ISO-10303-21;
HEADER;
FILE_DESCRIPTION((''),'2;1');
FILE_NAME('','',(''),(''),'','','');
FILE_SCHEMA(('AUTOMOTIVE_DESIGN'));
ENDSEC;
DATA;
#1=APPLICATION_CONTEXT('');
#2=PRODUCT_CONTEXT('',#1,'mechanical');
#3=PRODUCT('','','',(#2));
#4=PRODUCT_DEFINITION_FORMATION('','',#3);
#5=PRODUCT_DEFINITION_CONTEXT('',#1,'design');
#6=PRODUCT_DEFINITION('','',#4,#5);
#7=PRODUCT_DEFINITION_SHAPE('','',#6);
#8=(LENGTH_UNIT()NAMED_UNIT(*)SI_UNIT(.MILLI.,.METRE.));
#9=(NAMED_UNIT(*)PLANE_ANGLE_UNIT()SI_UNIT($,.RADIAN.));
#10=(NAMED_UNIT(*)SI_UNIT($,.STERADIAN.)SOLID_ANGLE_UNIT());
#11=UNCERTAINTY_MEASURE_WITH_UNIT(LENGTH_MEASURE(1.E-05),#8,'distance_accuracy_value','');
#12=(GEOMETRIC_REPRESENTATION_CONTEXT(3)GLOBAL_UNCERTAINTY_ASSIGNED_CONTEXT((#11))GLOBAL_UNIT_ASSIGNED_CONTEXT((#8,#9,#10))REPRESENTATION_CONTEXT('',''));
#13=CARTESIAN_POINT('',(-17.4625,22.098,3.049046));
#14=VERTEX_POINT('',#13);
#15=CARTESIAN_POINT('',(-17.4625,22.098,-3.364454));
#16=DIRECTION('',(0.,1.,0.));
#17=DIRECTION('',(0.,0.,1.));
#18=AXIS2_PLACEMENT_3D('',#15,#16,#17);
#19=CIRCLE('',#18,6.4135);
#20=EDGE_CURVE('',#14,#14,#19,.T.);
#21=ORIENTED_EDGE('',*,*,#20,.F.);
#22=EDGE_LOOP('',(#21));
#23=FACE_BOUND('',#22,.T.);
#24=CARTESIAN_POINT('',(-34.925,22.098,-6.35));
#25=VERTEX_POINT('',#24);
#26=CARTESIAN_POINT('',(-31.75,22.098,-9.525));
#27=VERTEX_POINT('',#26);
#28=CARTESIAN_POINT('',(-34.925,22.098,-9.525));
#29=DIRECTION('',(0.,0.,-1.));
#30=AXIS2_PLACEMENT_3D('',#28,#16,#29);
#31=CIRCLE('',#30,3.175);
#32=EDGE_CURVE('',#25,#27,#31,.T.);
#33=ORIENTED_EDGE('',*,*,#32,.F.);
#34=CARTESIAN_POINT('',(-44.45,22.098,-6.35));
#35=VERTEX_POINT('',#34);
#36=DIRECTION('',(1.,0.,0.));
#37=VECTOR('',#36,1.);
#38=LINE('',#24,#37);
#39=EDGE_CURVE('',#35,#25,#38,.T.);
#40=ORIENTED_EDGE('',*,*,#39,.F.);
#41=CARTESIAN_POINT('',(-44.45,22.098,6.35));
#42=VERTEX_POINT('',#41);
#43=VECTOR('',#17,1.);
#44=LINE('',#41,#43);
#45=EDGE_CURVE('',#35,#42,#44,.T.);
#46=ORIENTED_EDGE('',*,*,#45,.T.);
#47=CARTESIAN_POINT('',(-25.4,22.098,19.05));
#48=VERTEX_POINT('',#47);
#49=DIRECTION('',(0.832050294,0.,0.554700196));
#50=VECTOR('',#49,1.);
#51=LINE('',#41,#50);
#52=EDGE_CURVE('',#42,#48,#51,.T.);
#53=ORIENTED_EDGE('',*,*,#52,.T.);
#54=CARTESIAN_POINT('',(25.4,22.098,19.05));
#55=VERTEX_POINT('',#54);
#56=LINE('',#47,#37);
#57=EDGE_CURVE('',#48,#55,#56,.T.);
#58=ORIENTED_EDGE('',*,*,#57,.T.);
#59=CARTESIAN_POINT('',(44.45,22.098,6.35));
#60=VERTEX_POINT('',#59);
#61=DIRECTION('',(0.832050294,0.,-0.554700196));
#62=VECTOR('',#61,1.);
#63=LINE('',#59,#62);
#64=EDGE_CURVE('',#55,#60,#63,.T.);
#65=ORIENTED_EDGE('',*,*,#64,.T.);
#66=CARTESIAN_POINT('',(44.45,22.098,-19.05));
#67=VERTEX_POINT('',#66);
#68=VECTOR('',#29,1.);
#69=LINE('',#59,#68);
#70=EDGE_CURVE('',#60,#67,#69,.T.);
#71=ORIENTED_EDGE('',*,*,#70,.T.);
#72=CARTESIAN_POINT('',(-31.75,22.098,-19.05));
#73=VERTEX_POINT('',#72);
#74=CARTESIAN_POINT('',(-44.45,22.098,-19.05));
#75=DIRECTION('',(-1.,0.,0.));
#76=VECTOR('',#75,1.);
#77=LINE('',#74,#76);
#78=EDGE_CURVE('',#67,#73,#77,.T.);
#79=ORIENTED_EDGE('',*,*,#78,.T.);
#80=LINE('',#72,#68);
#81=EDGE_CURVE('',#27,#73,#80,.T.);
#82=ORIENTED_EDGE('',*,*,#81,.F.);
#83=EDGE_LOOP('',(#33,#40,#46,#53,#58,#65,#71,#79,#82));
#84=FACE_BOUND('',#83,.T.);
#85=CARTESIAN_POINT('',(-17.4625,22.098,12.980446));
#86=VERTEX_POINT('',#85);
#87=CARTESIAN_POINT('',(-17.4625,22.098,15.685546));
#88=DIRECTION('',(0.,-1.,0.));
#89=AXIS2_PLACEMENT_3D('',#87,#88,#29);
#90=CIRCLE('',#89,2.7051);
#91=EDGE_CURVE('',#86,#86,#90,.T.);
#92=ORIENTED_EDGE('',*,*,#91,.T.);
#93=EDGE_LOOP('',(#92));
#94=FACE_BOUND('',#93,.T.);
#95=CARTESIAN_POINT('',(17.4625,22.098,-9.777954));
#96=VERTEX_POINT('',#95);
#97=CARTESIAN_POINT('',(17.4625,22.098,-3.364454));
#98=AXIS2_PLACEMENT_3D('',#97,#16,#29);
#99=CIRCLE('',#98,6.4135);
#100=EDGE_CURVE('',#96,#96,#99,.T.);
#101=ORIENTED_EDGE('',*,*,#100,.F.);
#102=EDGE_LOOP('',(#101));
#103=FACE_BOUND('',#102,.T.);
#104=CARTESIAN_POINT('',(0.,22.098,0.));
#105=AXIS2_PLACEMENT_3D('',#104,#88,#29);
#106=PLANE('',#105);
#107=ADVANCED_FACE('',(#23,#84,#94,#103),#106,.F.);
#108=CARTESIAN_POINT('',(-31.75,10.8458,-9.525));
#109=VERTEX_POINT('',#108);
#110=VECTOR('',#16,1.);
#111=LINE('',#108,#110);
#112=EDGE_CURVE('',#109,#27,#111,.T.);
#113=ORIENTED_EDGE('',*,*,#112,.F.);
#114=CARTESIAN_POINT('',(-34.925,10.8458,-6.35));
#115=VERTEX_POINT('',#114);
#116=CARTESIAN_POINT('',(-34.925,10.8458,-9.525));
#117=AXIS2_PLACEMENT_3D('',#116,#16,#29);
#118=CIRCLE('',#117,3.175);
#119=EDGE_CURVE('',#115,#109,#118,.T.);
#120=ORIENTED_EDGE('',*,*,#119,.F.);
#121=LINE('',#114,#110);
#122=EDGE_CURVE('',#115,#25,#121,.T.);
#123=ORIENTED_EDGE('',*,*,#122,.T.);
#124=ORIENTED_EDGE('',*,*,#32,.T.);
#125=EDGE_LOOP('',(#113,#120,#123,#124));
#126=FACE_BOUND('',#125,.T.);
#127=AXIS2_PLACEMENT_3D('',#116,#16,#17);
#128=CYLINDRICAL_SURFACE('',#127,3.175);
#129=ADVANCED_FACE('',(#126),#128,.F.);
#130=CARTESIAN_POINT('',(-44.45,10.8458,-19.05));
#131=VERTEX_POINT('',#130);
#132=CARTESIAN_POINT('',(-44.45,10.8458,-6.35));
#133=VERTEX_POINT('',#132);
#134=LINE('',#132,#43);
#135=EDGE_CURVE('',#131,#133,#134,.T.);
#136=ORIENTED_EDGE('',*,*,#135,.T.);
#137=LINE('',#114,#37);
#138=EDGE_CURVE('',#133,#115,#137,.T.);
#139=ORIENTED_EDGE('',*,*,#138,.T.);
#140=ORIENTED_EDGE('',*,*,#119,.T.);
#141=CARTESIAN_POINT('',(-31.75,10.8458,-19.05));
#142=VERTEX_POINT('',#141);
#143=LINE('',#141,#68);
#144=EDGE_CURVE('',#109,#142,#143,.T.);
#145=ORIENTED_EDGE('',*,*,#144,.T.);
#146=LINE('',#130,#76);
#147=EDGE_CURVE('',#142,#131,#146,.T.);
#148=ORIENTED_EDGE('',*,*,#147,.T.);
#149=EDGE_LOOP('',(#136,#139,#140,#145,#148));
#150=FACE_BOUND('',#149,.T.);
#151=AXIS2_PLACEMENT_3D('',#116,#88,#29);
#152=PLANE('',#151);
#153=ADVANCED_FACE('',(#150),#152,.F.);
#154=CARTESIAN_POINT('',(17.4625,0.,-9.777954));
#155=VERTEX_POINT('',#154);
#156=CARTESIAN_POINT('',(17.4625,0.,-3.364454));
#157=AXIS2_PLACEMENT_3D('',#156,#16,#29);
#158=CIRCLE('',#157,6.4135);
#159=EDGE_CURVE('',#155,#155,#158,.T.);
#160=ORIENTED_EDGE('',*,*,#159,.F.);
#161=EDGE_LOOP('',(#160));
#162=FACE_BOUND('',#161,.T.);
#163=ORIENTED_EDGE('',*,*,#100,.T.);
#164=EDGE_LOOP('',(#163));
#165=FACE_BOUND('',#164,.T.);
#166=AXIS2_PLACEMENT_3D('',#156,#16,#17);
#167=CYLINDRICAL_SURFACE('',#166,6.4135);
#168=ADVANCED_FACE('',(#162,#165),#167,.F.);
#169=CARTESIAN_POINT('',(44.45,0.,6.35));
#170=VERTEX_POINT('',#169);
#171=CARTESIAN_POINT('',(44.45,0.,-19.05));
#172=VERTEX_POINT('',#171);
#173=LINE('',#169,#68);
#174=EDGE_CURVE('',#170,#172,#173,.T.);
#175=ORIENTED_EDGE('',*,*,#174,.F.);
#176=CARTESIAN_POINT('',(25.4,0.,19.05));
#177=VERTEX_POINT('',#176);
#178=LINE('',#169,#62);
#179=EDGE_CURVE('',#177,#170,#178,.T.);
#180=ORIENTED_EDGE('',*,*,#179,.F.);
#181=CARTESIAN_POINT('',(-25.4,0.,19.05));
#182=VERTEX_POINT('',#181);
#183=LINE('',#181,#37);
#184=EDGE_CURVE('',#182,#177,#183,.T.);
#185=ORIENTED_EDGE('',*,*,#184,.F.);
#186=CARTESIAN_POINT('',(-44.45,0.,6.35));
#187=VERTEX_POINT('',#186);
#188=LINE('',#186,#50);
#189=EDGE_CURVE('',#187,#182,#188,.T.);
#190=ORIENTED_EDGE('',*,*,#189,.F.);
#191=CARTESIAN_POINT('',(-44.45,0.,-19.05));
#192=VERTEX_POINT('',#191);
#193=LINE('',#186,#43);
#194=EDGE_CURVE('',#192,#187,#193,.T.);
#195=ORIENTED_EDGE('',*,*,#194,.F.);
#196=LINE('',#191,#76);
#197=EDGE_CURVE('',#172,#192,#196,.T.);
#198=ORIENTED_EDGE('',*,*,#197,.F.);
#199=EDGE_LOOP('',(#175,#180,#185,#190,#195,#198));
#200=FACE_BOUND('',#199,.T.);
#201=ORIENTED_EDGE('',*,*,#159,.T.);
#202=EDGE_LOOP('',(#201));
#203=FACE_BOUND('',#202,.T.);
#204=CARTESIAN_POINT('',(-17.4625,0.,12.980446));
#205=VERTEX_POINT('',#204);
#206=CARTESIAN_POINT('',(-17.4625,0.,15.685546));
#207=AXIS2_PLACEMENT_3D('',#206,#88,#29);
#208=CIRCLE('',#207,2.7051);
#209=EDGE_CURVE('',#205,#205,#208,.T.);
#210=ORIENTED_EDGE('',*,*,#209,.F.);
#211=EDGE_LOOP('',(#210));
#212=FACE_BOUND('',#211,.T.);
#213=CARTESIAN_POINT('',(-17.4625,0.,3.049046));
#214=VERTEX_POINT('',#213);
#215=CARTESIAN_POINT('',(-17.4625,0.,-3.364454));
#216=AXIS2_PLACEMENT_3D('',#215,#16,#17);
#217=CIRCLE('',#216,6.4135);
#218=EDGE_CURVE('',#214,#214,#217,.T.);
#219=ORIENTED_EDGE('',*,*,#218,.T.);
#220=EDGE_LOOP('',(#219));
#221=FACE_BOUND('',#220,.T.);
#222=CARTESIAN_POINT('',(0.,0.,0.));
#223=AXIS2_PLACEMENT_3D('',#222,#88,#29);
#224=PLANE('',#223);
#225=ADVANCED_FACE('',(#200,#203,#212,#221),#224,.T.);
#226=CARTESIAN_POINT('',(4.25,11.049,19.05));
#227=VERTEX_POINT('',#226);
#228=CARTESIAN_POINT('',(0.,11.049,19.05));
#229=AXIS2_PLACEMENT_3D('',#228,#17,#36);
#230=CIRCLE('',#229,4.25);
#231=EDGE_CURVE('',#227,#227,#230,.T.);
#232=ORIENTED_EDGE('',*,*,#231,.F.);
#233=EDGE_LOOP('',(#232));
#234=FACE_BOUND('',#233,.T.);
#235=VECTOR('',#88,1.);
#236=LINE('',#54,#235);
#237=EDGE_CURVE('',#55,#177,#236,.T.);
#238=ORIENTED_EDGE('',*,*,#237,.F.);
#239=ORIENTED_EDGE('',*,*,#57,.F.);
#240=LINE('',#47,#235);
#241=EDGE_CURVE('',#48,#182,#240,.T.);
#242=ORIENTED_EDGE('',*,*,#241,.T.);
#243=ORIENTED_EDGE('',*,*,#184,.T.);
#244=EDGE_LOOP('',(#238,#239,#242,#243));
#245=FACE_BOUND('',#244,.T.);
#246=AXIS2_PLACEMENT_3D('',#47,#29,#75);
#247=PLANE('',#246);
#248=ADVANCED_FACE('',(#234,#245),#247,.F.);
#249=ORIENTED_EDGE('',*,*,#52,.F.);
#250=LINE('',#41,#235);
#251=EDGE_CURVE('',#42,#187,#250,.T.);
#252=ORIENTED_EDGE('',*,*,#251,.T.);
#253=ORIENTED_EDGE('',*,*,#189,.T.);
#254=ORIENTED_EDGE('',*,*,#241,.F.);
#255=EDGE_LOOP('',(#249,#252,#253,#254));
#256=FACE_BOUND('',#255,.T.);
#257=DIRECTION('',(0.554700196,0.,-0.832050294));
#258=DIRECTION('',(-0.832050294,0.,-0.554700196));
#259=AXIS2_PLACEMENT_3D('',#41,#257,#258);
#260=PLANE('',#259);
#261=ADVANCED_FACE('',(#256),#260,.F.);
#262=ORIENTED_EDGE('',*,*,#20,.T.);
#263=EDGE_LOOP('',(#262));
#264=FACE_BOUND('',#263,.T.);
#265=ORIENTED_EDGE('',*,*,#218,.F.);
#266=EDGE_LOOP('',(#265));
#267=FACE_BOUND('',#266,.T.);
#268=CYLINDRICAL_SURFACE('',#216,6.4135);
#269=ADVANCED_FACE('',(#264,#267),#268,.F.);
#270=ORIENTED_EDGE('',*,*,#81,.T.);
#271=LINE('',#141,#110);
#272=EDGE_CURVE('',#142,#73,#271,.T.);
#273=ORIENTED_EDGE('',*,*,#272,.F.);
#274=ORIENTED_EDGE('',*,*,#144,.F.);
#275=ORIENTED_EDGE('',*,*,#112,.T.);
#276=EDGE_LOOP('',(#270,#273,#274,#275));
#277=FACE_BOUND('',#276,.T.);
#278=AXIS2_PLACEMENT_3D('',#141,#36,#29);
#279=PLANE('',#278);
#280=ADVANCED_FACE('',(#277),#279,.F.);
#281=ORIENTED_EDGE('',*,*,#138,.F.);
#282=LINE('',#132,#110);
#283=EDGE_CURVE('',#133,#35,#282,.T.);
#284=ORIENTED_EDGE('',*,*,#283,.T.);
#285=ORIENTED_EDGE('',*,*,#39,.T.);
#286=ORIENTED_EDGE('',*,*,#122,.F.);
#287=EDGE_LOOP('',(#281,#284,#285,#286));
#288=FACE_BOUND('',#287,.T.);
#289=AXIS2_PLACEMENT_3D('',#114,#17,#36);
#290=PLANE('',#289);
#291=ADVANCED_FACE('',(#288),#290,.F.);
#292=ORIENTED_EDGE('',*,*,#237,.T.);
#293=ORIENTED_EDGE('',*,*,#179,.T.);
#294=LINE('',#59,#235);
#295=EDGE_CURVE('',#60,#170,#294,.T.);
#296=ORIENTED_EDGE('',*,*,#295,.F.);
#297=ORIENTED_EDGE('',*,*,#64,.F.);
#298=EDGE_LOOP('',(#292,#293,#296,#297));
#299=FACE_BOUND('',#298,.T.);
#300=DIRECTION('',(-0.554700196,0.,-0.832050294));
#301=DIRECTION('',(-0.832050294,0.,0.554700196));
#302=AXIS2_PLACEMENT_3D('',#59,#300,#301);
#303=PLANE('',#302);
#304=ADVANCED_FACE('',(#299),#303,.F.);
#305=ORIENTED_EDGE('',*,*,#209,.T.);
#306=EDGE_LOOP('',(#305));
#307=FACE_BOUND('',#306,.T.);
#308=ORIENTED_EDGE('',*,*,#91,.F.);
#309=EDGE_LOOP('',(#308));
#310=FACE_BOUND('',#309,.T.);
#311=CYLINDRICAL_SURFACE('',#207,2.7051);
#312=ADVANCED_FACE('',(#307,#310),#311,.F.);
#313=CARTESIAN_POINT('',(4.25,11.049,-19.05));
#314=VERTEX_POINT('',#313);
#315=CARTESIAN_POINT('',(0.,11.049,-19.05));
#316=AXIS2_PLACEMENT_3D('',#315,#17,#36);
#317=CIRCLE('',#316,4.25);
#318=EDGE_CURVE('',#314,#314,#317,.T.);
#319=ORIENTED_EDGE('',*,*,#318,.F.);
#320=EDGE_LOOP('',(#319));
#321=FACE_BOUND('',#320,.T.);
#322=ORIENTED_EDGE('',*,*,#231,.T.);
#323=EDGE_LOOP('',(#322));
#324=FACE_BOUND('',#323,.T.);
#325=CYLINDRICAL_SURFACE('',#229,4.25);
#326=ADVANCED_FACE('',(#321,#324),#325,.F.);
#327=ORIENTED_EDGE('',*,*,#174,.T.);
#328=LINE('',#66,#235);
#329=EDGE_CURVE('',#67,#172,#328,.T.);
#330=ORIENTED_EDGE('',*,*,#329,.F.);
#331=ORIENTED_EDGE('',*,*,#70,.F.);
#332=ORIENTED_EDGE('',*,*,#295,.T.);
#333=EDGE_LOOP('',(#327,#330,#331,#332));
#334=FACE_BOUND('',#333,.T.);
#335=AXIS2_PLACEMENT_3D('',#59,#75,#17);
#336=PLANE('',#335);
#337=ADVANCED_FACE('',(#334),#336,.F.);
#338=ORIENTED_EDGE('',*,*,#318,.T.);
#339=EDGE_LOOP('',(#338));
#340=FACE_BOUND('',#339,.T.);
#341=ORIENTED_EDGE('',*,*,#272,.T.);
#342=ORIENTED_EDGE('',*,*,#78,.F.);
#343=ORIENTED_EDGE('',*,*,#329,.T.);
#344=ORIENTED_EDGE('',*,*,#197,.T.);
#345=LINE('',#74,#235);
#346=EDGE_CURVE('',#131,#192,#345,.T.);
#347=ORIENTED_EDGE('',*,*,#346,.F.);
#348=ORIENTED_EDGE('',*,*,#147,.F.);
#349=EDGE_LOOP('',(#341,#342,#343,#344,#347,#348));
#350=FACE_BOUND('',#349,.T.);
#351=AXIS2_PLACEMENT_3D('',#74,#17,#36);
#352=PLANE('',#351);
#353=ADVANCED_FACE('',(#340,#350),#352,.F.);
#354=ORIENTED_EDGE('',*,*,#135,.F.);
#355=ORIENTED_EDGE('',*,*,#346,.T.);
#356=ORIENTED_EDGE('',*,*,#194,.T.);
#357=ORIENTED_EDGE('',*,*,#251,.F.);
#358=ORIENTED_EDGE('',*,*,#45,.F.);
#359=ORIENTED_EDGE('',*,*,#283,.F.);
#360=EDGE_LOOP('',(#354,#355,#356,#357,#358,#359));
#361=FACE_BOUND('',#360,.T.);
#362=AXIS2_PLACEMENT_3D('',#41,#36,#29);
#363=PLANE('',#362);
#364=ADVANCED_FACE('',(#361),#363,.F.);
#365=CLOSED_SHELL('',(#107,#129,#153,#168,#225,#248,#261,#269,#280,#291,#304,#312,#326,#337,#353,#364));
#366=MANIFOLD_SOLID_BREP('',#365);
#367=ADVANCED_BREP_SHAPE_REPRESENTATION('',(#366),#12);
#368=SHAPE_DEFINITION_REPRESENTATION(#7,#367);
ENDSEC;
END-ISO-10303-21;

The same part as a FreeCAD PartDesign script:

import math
import FreeCAD as App
import Part
import Sketcher

V = App.Vector
Q = App.Units.Quantity


def add_polygon(sketch, points):
    """Adds a closed chain of lines whose ends are joined by coincident constraints."""
    first, n = sketch.GeometryCount, len(points)
    for a, b in zip(points, points[1:] + points[:1]):
        sketch.addGeometry(Part.LineSegment(App.Vector(*a, 0), App.Vector(*b, 0)), False)
    for i in range(n):
        sketch.addConstraint(Sketcher.Constraint("Coincident", first + i, 2, first + (i + 1) % n, 1))

doc = App.newDocument("Part")
body = doc.addObject("PartDesign::Body", "Body")

# Sketch on XZ plane
sketch1 = body.newObject("Sketcher::SketchObject", "Sketch")
sketch1.AttachmentSupport = (doc.getObject("XZ_Plane"), [""])
sketch1.MapMode = "FlatFace"
add_polygon(sketch1, [(-44, 6), (-25, 19), (25, 19), (44, 6), (44, -19), (-44, -19)])  # lines 0-5
sketch1.addConstraint(Sketcher.Constraint("Horizontal", 1))
sketch1.addConstraint(Sketcher.Constraint("Vertical", 3))
sketch1.addConstraint(Sketcher.Constraint("Horizontal", 4))
sketch1.addConstraint(Sketcher.Constraint("Vertical", 5))
sketch1.addConstraint(Sketcher.Constraint("Symmetric", 2, 2, 5, 2, -2))
sketch1.addConstraint(Sketcher.Constraint("Equal", 0, 2))
sketch1.addConstraint(Sketcher.Constraint("DistanceX", 1, 1, 1, 2, Q("2 in")))
sketch1.addConstraint(Sketcher.Constraint("DistanceY", 3, 2, 3, 1, Q("1 in")))
sketch1.addConstraint(Sketcher.Constraint("DistanceX", 4, 2, 4, 1, Q("3.5 in")))
sketch1.addConstraint(Sketcher.Constraint("DistanceY", 2, 2, 1, 2, Q("0.5 in")))
sketch1.addConstraint(Sketcher.Constraint("DistanceY", -1, 1, 0, 2, Q("0.75 in")))
pad1 = body.newObject("PartDesign::Pad", "Pad")
pad1.Profile = sketch1
pad1.Length = Q("0.87 in")
pad1.Reversed = True

# Sketch on XZ plane
sketch2 = body.newObject("Sketcher::SketchObject", "Sketch001")
sketch2.AttachmentSupport = (doc.getObject("XZ_Plane"), [""])
sketch2.MapMode = "FlatFace"
sketch2.AttachmentOffset = App.Placement(V(0, 0, -0.87 * 25.4), App.Rotation())
sketch2.addGeometry(Part.LineSegment(V(-31.8, -9.5, 0), V(-31.8, -19.1, 0)), False)
sketch2.addGeometry(Part.LineSegment(V(-31.8, -19.1, 0), V(-44.5, -19.1, 0)), False)
sketch2.addGeometry(Part.LineSegment(V(-44.5, -19.1, 0), V(-44.5, -6.3, 0)), False)
sketch2.addGeometry(Part.LineSegment(V(-44.5, -6.3, 0), V(-34.9, -6.3, 0)), False)
sketch2.addGeometry(Part.ArcOfCircle(Part.Circle(V(-34.9, -9.5, 0), V(0, 0, 1), 3.2), math.radians(0), math.radians(90)), False)
sketch2.addConstraint(Sketcher.Constraint("Coincident", 0, 2, 1, 1))
sketch2.addConstraint(Sketcher.Constraint("Coincident", 1, 2, 2, 1))
sketch2.addConstraint(Sketcher.Constraint("Coincident", 2, 2, 3, 1))
sketch2.addConstraint(Sketcher.Constraint("Tangent", 3, 2, 4, 2))
sketch2.addConstraint(Sketcher.Constraint("Tangent", 4, 1, 0, 1))
sketch2.addConstraint(Sketcher.Constraint("Vertical", 0))
sketch2.addConstraint(Sketcher.Constraint("Horizontal", 1))
sketch2.addConstraint(Sketcher.Constraint("Vertical", 2))
sketch2.addConstraint(Sketcher.Constraint("Horizontal", 3))
sketch2.addConstraint(Sketcher.Constraint("Equal", 3, 0))
sketch2.addConstraint(Sketcher.Constraint("DistanceX", 1, 2, 1, 1, Q("0.5 in")))
sketch2.addConstraint(Sketcher.Constraint("Radius", 4, Q("0.125 in")))
sketch2.addConstraint(Sketcher.Constraint("DistanceX", 0, 2, -1, 1, Q("1.25 in")))
sketch2.addConstraint(Sketcher.Constraint("DistanceY", 0, 2, -1, 1, Q("0.75 in")))
pocket1 = body.newObject("PartDesign::Pocket", "Pocket")
pocket1.Profile = sketch2
pocket1.Length = Q("0.443 in")
pocket1.Reversed = True

# Sketch on XY plane
sketch3 = body.newObject("Sketcher::SketchObject", "Sketch002")
sketch3.AttachmentSupport = (doc.getObject("XY_Plane"), [""])
sketch3.MapMode = "FlatFace"
sketch3.AttachmentOffset = App.Placement(V(0, 0, 0.75 * 25.4), App.Rotation())
sketch3.addGeometry(Part.Circle(V(0, 11, 0), V(0, 0, 1), 4.2), False)
sketch3.addConstraint(Sketcher.Constraint("PointOnObject", 0, 3, -2))
sketch3.addConstraint(Sketcher.Constraint("Diameter", 0, Q("8.5 mm")))
sketch3.addConstraint(Sketcher.Constraint("DistanceY", -1, 1, 0, 3, Q("0.435 in")))
doc.recompute()
hole = body.newObject("PartDesign::Hole", "Hole")
hole.Profile = sketch3
hole.ThreadType = "None"
hole.Diameter = 8.5
hole.DepthType = "ThroughAll"

# Sketch on XZ plane
sketch4 = body.newObject("Sketcher::SketchObject", "Sketch003")
sketch4.AttachmentSupport = (doc.getObject("XZ_Plane"), [""])
sketch4.MapMode = "FlatFace"
sketch4.AttachmentOffset = App.Placement(V(0, 0, -0.87 * 25.4), App.Rotation())
sketch4.addGeometry(Part.Circle(V(-17, -3, 0), V(0, 0, 1), 6), False)
sketch4.addGeometry(Part.Circle(V(17, -3, 0), V(0, 0, 1), 6), False)
sketch4.addConstraint(Sketcher.Constraint("Equal", 0, 1))
sketch4.addConstraint(Sketcher.Constraint("Symmetric", 0, 3, 1, 3, -2))
sketch4.addConstraint(Sketcher.Constraint("Diameter", 0, Q("0.505 in")))
sketch4.addConstraint(Sketcher.Constraint("DistanceX", 0, 3, -1, 1, Q("0.6875 in")))
sketch4.addConstraint(Sketcher.Constraint("DistanceY", 0, 3, -1, 1, Q("3.364454 mm")))
pocket2 = body.newObject("PartDesign::Pocket", "Pocket001")
pocket2.Profile = sketch4
pocket2.Type = "ThroughAll"
pocket2.Reversed = True

# Sketch on XZ plane
sketch5 = body.newObject("Sketcher::SketchObject", "Sketch004")
sketch5.AttachmentSupport = (doc.getObject("XZ_Plane"), [""])
sketch5.MapMode = "FlatFace"
sketch5.addGeometry(Part.Circle(V(-17.5, 15.7, 0), V(0, 0, 1), 2.7), False)
sketch5.addConstraint(Sketcher.Constraint("Diameter", 0, Q("0.213 in")))
sketch5.addConstraint(Sketcher.Constraint("DistanceX", 0, 3, -1, 1, Q("0.6875 in")))
sketch5.addConstraint(Sketcher.Constraint("DistanceY", -1, 1, 0, 3, Q("15.685546 mm")))
doc.recompute()
hole2 = body.newObject("PartDesign::Hole", "Hole001")
hole2.Profile = sketch5
hole2.ThreadType = "None"
hole2.Diameter = Q("0.213 in")
hole2.DepthType = "ThroughAll"

doc.recompute()
